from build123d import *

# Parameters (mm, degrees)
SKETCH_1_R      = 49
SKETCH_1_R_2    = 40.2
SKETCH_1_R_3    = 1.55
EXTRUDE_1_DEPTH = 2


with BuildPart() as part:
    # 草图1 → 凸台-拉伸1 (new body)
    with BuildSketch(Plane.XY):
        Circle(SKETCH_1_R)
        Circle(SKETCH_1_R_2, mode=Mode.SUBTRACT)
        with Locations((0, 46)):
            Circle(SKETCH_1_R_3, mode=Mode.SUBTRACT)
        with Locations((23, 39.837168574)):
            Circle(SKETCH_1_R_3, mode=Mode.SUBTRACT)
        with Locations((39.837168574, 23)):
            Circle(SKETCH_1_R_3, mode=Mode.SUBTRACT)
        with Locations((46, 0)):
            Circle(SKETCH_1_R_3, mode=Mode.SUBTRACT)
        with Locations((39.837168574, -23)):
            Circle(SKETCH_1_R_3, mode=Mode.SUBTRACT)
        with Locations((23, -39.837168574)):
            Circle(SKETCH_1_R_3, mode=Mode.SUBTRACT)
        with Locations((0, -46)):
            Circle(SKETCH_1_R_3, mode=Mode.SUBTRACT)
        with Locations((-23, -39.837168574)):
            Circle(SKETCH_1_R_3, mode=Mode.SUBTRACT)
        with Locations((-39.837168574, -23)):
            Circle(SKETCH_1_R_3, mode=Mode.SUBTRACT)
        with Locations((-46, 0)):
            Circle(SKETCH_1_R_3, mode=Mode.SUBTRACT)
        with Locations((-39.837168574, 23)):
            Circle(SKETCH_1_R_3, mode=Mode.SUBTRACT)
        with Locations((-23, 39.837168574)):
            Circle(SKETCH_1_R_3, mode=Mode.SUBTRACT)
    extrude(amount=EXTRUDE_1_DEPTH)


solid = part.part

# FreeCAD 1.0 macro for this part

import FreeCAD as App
import Part
import Sketcher
from FreeCAD import Vector
Q = App.Units.Quantity

doc = App.newDocument("Part")
body = doc.addObject("PartDesign::Body", "Body")

# Sketch on XY plane
sketch1 = body.newObject("Sketcher::SketchObject", "Sketch")
sketch1.AttachmentSupport = (doc.getObject("XY_Plane"), [""])
sketch1.MapMode = "FlatFace"
sketch1.addGeometry(Part.Circle(Vector(0, 0, 0), Vector(0, 0, 1), 49), False)
sketch1.addGeometry(Part.Circle(Vector(-23, -39.8, 0), Vector(0, 0, 1), 1.6), False)
sketch1.addGeometry(Part.Circle(Vector(-39.8, -23, 0), Vector(0, 0, 1), 1.6), False)
sketch1.addGeometry(Part.Circle(Vector(0, -46, 0), Vector(0, 0, 1), 1.6), False)
sketch1.addGeometry(Part.Circle(Vector(23, -39.8, 0), Vector(0, 0, 1), 1.6), False)
sketch1.addGeometry(Part.Circle(Vector(39.8, -23, 0), Vector(0, 0, 1), 1.6), False)
sketch1.addGeometry(Part.Circle(Vector(-46, 0, 0), Vector(0, 0, 1), 1.6), False)
sketch1.addGeometry(Part.Circle(Vector(-39.8, 23, 0), Vector(0, 0, 1), 1.6), False)
sketch1.addGeometry(Part.Circle(Vector(-23, 39.8, 0), Vector(0, 0, 1), 1.6), False)
sketch1.addGeometry(Part.Circle(Vector(0, 0, 0), Vector(0, 0, 1), 40.2), False)
sketch1.addGeometry(Part.Circle(Vector(46, 0, 0), Vector(0, 0, 1), 1.6), False)
sketch1.addGeometry(Part.Circle(Vector(39.8, 23, 0), Vector(0, 0, 1), 1.6), False)
sketch1.addGeometry(Part.Circle(Vector(0, 46, 0), Vector(0, 0, 1), 1.6), False)
sketch1.addGeometry(Part.Circle(Vector(23, 39.8, 0), Vector(0, 0, 1), 1.6), False)
sketch1.addConstraint(Sketcher.Constraint("Coincident", 0, 3, -1, 1))
sketch1.addConstraint(Sketcher.Constraint("Coincident", 9, 3, -1, 1))
sketch1.addConstraint(Sketcher.Constraint("Equal", 1, 2))
sketch1.addConstraint(Sketcher.Constraint("Equal", 2, 3))
sketch1.addConstraint(Sketcher.Constraint("Equal", 3, 4))
sketch1.addConstraint(Sketcher.Constraint("Equal", 4, 5))
sketch1.addConstraint(Sketcher.Constraint("Equal", 5, 6))
sketch1.addConstraint(Sketcher.Constraint("Equal", 6, 7))
sketch1.addConstraint(Sketcher.Constraint("Equal", 7, 8))
sketch1.addConstraint(Sketcher.Constraint("Equal", 8, 10))
sketch1.addConstraint(Sketcher.Constraint("Equal", 10, 11))
sketch1.addConstraint(Sketcher.Constraint("Equal", 11, 12))
sketch1.addConstraint(Sketcher.Constraint("Equal", 12, 13))
sketch1.addConstraint(Sketcher.Constraint("Symmetric", 5, 3, 7, 3, -1, 1))
sketch1.addConstraint(Sketcher.Constraint("Symmetric", 4, 3, 8, 3, -1, 1))
sketch1.addConstraint(Sketcher.Constraint("Symmetric", 6, 3, 10, 3, -1, 1))
sketch1.addConstraint(Sketcher.Constraint("Symmetric", 2, 3, 11, 3, -1, 1))
sketch1.addConstraint(Sketcher.Constraint("Symmetric", 3, 3, 12, 3, -1, 1))
sketch1.addConstraint(Sketcher.Constraint("Symmetric", 1, 3, 13, 3, -1, 1))
sketch1.addConstraint(Sketcher.Constraint("Symmetric", 1, 3, 4, 3, -2))
sketch1.addConstraint(Sketcher.Constraint("Symmetric", 2, 3, 5, 3, -2))
sketch1.addConstraint(Sketcher.Constraint("PointOnObject", 3, 3, -2))
sketch1.addConstraint(Sketcher.Constraint("PointOnObject", 6, 3, -1))
sketch1.addConstraint(Sketcher.Constraint("Diameter", 0, Q("98 mm")))
sketch1.addConstraint(Sketcher.Constraint("Diameter", 1, Q("3.1 mm")))
sketch1.addConstraint(Sketcher.Constraint("Diameter", 9, Q("80.4 mm")))
sketch1.addConstraint(Sketcher.Constraint("DistanceX", 1, 3, -1, 1, Q("23 mm")))
sketch1.addConstraint(Sketcher.Constraint("DistanceY", 2, 3, -1, 1, Q("23 mm")))
sketch1.addConstraint(Sketcher.Constraint("DistanceY", 3, 3, -1, 1, Q("46 mm")))
sketch1.addConstraint(Sketcher.Constraint("DistanceX", 6, 3, -1, 1, Q("46 mm")))
sketch1.addConstraint(Sketcher.Constraint("DistanceY", 1, 3, -1, 1, Q("39.837169 mm")))
sketch1.addConstraint(Sketcher.Constraint("DistanceX", 2, 3, -1, 1, Q("39.837169 mm")))
pad1 = body.newObject("PartDesign::Pad", "Pad")
pad1.Profile = sketch1
pad1.Length = 2

doc.recompute()
